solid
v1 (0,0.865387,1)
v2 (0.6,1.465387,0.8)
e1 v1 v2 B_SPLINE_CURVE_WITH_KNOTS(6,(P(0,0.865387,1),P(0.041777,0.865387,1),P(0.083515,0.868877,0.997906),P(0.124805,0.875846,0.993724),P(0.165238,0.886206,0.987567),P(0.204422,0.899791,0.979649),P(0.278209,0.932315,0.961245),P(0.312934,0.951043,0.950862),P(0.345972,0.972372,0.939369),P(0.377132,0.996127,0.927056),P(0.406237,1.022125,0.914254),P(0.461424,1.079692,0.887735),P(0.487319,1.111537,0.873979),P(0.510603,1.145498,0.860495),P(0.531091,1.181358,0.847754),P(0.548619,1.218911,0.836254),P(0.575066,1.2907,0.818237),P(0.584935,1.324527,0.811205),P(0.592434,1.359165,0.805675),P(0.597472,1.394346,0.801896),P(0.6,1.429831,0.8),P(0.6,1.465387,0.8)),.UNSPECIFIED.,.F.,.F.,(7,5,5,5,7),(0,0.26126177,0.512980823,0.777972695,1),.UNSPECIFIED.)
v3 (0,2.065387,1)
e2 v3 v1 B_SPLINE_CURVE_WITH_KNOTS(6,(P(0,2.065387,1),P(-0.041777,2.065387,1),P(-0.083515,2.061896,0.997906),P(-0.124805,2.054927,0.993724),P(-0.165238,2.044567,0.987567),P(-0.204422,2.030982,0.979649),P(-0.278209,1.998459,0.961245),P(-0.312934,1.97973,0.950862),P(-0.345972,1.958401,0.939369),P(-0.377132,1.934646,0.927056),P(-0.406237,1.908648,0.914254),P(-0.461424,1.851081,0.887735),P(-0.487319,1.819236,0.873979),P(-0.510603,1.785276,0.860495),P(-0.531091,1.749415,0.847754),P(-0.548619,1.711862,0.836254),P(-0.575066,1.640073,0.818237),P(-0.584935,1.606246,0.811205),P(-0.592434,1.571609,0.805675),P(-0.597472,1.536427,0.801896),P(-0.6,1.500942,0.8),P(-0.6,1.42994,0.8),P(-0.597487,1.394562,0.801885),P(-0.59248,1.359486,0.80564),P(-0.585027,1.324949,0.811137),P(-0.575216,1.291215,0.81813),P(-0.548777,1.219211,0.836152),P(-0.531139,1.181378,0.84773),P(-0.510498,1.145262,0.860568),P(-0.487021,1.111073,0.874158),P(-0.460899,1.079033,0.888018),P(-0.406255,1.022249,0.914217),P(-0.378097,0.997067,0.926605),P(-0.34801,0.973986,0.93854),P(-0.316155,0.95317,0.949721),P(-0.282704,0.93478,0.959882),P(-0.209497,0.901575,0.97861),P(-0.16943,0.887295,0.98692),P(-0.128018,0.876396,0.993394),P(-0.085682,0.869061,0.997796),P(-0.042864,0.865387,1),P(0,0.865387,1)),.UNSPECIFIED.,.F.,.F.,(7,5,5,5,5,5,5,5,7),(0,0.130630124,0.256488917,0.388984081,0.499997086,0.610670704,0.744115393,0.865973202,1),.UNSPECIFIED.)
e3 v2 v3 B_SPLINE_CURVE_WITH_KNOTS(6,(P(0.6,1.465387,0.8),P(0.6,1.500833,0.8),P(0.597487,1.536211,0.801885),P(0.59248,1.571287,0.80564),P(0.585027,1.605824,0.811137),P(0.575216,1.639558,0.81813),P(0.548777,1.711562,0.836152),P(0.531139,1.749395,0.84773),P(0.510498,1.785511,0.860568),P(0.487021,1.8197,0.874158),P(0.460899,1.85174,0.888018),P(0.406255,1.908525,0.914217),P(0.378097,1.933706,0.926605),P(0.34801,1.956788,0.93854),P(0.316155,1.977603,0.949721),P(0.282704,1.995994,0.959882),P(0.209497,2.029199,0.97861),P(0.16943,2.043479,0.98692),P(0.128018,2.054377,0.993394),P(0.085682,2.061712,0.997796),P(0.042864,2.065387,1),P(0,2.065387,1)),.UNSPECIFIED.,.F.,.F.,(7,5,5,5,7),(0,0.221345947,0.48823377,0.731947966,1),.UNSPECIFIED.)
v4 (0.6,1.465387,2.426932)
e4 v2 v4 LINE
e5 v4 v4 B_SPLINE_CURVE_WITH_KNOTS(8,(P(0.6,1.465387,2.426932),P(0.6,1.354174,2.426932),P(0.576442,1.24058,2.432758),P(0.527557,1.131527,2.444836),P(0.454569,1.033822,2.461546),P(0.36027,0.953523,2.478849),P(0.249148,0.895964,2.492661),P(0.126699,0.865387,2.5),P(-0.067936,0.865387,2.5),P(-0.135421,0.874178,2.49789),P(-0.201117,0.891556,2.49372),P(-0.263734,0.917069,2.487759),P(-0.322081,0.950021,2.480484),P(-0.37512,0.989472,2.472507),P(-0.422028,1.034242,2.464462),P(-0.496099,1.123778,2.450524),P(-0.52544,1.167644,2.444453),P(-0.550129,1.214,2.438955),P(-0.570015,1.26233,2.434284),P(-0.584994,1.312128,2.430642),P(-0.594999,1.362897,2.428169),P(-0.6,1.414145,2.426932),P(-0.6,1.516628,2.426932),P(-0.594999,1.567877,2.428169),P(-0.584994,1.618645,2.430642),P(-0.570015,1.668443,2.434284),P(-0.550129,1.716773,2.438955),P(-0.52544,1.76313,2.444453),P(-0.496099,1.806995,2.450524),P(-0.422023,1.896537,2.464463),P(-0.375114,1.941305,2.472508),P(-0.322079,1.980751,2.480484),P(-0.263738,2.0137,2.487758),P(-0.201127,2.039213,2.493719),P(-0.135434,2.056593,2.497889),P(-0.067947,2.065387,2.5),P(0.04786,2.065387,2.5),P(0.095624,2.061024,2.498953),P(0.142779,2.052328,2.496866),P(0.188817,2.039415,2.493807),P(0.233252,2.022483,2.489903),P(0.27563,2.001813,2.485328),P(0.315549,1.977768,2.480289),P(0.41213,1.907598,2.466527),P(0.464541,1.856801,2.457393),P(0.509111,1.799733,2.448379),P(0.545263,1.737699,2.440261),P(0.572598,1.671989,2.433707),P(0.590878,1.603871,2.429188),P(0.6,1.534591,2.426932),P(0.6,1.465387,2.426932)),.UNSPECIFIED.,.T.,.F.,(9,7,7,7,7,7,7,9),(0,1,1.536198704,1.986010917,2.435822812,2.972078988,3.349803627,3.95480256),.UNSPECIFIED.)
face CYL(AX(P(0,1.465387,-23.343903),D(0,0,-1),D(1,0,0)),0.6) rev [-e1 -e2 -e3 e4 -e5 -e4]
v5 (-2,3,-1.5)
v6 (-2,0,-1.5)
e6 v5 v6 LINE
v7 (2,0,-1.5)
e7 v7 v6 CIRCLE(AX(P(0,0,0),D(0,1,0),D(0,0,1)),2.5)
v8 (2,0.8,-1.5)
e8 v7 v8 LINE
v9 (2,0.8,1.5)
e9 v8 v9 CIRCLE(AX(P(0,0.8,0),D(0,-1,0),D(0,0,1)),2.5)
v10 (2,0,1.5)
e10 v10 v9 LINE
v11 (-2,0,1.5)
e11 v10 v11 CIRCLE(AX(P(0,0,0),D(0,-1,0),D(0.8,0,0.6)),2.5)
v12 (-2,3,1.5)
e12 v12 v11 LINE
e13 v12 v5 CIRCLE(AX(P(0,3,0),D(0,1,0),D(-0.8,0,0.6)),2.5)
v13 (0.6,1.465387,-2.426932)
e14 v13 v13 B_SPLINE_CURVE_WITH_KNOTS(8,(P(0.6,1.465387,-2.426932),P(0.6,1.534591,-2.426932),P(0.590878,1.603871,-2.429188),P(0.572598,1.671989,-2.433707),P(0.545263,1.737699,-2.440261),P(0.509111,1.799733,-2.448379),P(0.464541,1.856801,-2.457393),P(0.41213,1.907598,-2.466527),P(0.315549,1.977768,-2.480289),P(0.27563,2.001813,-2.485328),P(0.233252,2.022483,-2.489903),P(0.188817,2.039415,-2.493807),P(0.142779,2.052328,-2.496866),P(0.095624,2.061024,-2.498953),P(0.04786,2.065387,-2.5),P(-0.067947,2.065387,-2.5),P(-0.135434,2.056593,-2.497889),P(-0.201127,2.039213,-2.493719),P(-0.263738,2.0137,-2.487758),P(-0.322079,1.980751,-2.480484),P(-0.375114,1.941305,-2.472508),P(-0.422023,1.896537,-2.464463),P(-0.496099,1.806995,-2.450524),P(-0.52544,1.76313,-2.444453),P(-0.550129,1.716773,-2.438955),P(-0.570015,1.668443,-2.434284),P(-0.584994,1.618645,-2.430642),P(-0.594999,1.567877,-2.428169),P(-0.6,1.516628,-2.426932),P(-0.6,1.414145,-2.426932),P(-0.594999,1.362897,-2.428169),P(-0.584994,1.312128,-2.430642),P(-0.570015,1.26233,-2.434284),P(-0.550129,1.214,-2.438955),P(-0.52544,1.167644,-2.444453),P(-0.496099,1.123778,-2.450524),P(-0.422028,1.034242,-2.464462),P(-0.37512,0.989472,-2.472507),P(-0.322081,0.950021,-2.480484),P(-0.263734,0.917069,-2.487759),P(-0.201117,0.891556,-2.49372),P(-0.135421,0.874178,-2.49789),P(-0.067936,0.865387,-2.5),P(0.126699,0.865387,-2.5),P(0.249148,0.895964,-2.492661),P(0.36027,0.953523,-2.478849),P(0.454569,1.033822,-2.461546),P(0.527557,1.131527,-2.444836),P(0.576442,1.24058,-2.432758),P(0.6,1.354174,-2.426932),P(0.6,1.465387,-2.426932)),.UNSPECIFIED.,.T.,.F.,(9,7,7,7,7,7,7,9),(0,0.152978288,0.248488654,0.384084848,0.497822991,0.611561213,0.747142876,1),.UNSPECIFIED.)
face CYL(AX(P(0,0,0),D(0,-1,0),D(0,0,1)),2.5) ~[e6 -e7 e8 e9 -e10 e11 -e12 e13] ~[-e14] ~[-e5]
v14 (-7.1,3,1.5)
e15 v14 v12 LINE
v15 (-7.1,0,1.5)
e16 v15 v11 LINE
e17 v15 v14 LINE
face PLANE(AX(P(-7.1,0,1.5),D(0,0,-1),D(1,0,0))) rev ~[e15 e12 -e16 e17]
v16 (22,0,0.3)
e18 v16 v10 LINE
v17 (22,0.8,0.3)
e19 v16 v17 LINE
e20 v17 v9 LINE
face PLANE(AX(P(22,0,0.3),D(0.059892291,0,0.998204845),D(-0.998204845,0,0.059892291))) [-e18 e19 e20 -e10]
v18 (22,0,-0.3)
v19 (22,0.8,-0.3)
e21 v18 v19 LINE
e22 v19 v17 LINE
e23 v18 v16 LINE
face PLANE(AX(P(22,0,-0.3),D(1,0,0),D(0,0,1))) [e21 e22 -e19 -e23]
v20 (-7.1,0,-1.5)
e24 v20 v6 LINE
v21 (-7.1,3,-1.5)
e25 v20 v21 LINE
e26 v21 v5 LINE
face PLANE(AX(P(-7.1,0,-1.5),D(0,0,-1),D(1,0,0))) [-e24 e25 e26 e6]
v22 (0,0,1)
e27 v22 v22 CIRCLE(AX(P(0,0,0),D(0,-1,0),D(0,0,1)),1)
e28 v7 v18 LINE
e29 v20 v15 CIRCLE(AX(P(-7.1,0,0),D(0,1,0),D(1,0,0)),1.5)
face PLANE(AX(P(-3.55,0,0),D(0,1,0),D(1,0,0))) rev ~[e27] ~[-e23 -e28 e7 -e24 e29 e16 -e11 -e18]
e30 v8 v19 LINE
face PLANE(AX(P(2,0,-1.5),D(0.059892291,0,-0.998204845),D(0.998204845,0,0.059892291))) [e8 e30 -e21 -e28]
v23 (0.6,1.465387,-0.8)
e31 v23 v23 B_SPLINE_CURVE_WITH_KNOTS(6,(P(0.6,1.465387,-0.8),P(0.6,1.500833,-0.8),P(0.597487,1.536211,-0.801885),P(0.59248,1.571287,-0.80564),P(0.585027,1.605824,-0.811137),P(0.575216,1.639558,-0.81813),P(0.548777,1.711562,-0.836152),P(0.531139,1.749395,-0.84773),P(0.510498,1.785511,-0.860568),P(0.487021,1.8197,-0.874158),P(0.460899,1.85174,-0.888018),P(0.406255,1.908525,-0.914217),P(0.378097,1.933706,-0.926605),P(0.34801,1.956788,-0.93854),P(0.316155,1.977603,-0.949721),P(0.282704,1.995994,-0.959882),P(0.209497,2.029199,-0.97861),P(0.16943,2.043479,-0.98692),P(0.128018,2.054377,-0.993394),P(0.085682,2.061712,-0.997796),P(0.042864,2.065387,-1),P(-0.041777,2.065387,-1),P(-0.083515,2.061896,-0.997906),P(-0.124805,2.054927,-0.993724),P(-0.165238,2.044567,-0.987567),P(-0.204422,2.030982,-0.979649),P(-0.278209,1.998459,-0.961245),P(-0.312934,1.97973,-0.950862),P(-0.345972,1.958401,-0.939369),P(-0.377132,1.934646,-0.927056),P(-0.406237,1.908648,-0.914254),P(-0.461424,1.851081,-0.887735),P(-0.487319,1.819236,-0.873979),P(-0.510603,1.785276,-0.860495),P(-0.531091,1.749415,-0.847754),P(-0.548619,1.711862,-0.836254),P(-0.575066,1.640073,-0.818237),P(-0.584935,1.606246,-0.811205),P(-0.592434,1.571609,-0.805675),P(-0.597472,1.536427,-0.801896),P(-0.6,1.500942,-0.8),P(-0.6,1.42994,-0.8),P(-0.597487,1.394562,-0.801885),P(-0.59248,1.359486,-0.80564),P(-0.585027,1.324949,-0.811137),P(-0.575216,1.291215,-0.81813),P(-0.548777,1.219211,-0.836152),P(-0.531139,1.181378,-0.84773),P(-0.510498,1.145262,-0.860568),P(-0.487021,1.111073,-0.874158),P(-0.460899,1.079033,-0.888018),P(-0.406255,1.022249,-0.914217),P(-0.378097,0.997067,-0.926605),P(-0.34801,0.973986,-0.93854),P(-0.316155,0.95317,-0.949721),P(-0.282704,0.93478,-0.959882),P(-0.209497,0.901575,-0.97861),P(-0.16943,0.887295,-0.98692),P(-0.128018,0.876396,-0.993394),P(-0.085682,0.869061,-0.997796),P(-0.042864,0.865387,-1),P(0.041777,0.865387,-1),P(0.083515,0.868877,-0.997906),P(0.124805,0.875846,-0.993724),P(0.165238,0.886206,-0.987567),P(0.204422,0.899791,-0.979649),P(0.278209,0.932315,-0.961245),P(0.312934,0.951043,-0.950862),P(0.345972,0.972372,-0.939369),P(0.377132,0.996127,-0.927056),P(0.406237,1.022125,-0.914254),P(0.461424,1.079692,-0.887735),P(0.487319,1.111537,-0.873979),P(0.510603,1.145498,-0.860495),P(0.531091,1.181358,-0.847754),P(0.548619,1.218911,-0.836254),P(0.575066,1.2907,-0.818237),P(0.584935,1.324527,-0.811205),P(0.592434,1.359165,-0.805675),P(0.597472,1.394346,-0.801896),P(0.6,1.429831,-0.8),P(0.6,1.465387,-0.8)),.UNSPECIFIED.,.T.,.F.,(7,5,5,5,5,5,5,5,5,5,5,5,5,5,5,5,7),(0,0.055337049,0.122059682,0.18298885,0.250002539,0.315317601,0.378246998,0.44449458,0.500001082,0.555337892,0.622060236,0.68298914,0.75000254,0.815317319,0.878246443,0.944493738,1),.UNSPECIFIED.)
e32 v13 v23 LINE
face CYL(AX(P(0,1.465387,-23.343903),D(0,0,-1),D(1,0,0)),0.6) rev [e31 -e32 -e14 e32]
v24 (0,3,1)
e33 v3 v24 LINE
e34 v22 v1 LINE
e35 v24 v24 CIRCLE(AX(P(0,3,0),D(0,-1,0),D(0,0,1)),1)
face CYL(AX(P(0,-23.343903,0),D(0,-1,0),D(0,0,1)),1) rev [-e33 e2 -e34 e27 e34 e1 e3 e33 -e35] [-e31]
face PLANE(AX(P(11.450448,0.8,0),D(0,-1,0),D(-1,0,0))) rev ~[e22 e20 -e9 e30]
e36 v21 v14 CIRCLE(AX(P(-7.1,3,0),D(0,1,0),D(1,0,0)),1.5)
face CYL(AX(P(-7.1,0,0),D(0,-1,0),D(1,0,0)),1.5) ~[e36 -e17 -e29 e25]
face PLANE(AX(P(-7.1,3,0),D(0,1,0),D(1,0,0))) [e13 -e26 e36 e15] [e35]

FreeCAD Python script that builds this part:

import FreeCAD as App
import Part
import Sketcher

V = App.Vector
Q = App.Units.Quantity


def add_polygon(sketch, points):
    """Adds a closed chain of lines whose ends are joined by coincident constraints."""
    first, n = sketch.GeometryCount, len(points)
    for a, b in zip(points, points[1:] + points[:1]):
        sketch.addGeometry(Part.LineSegment(App.Vector(*a, 0), App.Vector(*b, 0)), False)
    for i in range(n):
        sketch.addConstraint(Sketcher.Constraint("Coincident", first + i, 2, first + (i + 1) % n, 1))

doc = App.newDocument("Part")
body = doc.addObject("PartDesign::Body", "Body")

# Sketch on XZ plane
sketch1 = body.newObject("Sketcher::SketchObject", "Sketch")
sketch1.AttachmentSupport = (doc.getObject("XZ_Plane"), [""])
sketch1.MapMode = "FlatFace"
sketch1.addGeometry(Part.Circle(V(0, 0, 0), V(0, 0, 1), 2.5), False)
sketch1.addConstraint([
    Sketcher.Constraint("Coincident", 0, 3, -1, 1),
    Sketcher.Constraint("Diameter", 0, Q("5 mm")),
])
pad1 = body.newObject("PartDesign::Pad", "Pad")
pad1.Profile = sketch1
pad1.Length = 3
pad1.Reversed = True

# Sketch on XZ plane
sketch2 = body.newObject("Sketcher::SketchObject", "Sketch001")
sketch2.AttachmentSupport = (doc.getObject("XZ_Plane"), [""])
sketch2.MapMode = "FlatFace"
add_polygon(sketch2, [(22, -0.3), (2, -1.5), (2, 1.5), (22, 0.3)])  # lines 0-3
sketch2.addConstraint([
    Sketcher.Constraint("Vertical", 1),
    Sketcher.Constraint("Vertical", 3),
    Sketcher.Constraint("Equal", 0, 2),
    Sketcher.Constraint("DistanceY", 1, 1, 1, 2, Q("3 mm")),
    Sketcher.Constraint("DistanceY", 3, 2, 3, 1, Q("0.6 mm")),
    Sketcher.Constraint("DistanceX", -1, 1, 0, 2, Q("2 mm")),
    Sketcher.Constraint("DistanceX", -1, 1, 2, 2, Q("22 mm")),
    Sketcher.Constraint("DistanceY", 0, 2, -1, 1, Q("1.5 mm")),
])
pad2 = body.newObject("PartDesign::Pad", "Pad001")
pad2.Profile = sketch2
pad2.Length = 0.8
pad2.Reversed = True

# Sketch on XZ plane
sketch3 = body.newObject("Sketcher::SketchObject", "Sketch002")
sketch3.AttachmentSupport = (doc.getObject("XZ_Plane"), [""])
sketch3.MapMode = "FlatFace"
add_polygon(sketch3, [(-7.1, -1.5), (-7.1, 1.5), (0, 1.5), (0, -1.5)])  # lines 0-3
sketch3.addConstraint([
    Sketcher.Constraint("Vertical", 0),
    Sketcher.Constraint("Horizontal", 1),
    Sketcher.Constraint("Vertical", 2),
    Sketcher.Constraint("Horizontal", 3),
    Sketcher.Constraint("Symmetric", 1, 2, 2, 2, -1, 1),
    Sketcher.Constraint("DistanceY", 0, 1, 0, 2, Q("3 mm")),
    Sketcher.Constraint("DistanceX", 1, 1, 1, 2, Q("7.1 mm")),
])
pad3 = body.newObject("PartDesign::Pad", "Pad002")
pad3.Profile = sketch3
pad3.Length = 3
pad3.Reversed = True

# Sketch on XZ plane
sketch4 = body.newObject("Sketcher::SketchObject", "Sketch003")
sketch4.AttachmentSupport = (doc.getObject("XZ_Plane"), [""])
sketch4.MapMode = "FlatFace"
sketch4.addGeometry(Part.Circle(V(-7.1, 0, 0), V(0, 0, 1), 1.5), False)
sketch4.addConstraint([
    Sketcher.Constraint("PointOnObject", 0, 3, -1),
    Sketcher.Constraint("Diameter", 0, Q("3 mm")),
    Sketcher.Constraint("DistanceX", 0, 3, -1, 1, Q("7.1 mm")),
])
pad4 = body.newObject("PartDesign::Pad", "Pad003")
pad4.Profile = sketch4
pad4.Length = 3
pad4.Reversed = True

# Sketch on XZ plane
sketch5 = body.newObject("Sketcher::SketchObject", "Sketch004")
sketch5.AttachmentSupport = (doc.getObject("XZ_Plane"), [""])
sketch5.MapMode = "FlatFace"
sketch5.addGeometry(Part.Circle(V(0, 0, 0), V(0, 0, 1), 1), False)
sketch5.addConstraint([
    Sketcher.Constraint("Coincident", 0, 3, -1, 1),
    Sketcher.Constraint("Diameter", 0, Q("2 mm")),
])
pocket1 = body.newObject("PartDesign::Pocket", "Pocket")
pocket1.Profile = sketch5
pocket1.Type = "ThroughAll"
pocket1.Midplane = True

# Sketch on XY plane
sketch6 = body.newObject("Sketcher::SketchObject", "Sketch005")
sketch6.AttachmentSupport = (doc.getObject("XY_Plane"), [""])
sketch6.MapMode = "FlatFace"
sketch6.addGeometry(Part.Circle(V(0, 1.5, 0), V(0, 0, 1), 0.6), False)
sketch6.addConstraint([
    Sketcher.Constraint("PointOnObject", 0, 3, -2),
    Sketcher.Constraint("Diameter", 0, Q("1.2 mm")),
    Sketcher.Constraint("DistanceY", -1, 1, 0, 3, Q("1.465387 mm")),
])
pocket2 = body.newObject("PartDesign::Pocket", "Pocket001")
pocket2.Profile = sketch6
pocket2.Type = "ThroughAll"
pocket2.Midplane = True

doc.recompute()
